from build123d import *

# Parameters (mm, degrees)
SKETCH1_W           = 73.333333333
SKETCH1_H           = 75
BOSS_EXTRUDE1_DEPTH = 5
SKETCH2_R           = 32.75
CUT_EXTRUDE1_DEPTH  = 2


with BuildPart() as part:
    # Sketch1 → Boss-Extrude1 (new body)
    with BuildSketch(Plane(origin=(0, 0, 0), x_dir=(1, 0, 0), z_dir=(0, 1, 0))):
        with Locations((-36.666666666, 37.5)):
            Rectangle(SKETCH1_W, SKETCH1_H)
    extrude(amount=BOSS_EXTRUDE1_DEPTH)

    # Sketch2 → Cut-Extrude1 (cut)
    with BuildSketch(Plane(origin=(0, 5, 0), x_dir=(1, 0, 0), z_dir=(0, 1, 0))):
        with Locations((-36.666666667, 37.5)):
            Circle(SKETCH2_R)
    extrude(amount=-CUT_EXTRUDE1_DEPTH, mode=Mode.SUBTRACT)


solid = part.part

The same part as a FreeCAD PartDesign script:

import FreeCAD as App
import Part
import Sketcher


def add_polygon(sketch, points):
    """Adds a closed chain of lines whose ends are joined by coincident constraints."""
    first, n = sketch.GeometryCount, len(points)
    for a, b in zip(points, points[1:] + points[:1]):
        sketch.addGeometry(Part.LineSegment(App.Vector(*a, 0), App.Vector(*b, 0)), False)
    for i in range(n):
        sketch.addConstraint(Sketcher.Constraint("Coincident", first + i, 2, first + (i + 1) % n, 1))

doc = App.newDocument("Part")
body = doc.addObject("PartDesign::Body", "Body")

# Sketch on XZ plane
sketch1 = body.newObject("Sketcher::SketchObject", "Sketch")
sketch1.AttachmentSupport = (doc.getObject("XZ_Plane"), [""])
sketch1.MapMode = "FlatFace"
add_polygon(sketch1, [(-73, -75), (-73, 0), (0, 0), (0, -75)])  # lines 0-3
sketch1.addConstraint([
    Sketcher.Constraint("Vertical", 0),
    Sketcher.Constraint("Horizontal", 1),
    Sketcher.Constraint("Vertical", 2),
    Sketcher.Constraint("Horizontal", 3),
    Sketcher.Constraint("Coincident", 1, 2, -1, 1),
    Sketcher.Constraint("DistanceY", 0, 1, 0, 2, 75.0),
    Sketcher.Constraint("DistanceX", 1, 1, 1, 2, 73.333333),
])
pad1 = body.newObject("PartDesign::Pad", "Pad")
pad1.Profile = sketch1
pad1.Length = 5
pad1.Reversed = True

# Sketch on XZ plane
sketch2 = body.newObject("Sketcher::SketchObject", "Sketch001")
sketch2.AttachmentSupport = (doc.getObject("XZ_Plane"), [""])
sketch2.MapMode = "FlatFace"
sketch2.AttachmentOffset = App.Placement(App.Vector(0, 0, -5), App.Rotation())
sketch2.addGeometry(Part.Circle(App.Vector(-37, -38, 0), App.Vector(0, 0, 1), 33), False)
sketch2.addConstraint([
    Sketcher.Constraint("Diameter", 0, 65.5),
    Sketcher.Constraint("DistanceY", 0, 3, -1, 1, 37.5),
    Sketcher.Constraint("DistanceX", 0, 3, -1, 1, 36.666667),
])
pocket1 = body.newObject("PartDesign::Pocket", "Pocket")
pocket1.Profile = sketch2
pocket1.Length = 2
pocket1.Reversed = True

doc.recompute()
